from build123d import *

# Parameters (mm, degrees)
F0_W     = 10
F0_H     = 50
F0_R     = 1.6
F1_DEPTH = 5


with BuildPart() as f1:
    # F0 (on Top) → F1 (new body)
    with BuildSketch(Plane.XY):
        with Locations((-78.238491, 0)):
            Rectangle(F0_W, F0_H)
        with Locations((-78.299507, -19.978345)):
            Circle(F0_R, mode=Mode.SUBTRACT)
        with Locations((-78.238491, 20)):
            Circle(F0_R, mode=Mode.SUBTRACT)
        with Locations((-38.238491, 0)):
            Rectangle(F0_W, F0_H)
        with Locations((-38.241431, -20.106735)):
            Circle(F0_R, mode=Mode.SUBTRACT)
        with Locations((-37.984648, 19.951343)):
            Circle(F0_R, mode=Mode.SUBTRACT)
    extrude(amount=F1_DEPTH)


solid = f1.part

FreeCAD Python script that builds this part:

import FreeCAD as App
import Part
import Sketcher
from FreeCAD import Vector

doc = App.newDocument("Part")
body = doc.addObject("PartDesign::Body", "Body")
body.AllowCompound = True

# Sketch on XY plane
sketch1 = doc.addObject("Sketcher::SketchObject", "Sketch")
body.addObject(sketch1)
sketch1.AttachmentSupport = (doc.XY_Plane, [""])
sketch1.MapMode = "FlatFace"
sketch1.addGeometry(Part.LineSegment(Vector(-83.2, 25, 0), Vector(-83.2, -25, 0)), False)
sketch1.addGeometry(Part.LineSegment(Vector(-83.2, -25, 0), Vector(-73.2, -25, 0)), False)
sketch1.addGeometry(Part.LineSegment(Vector(-73.2, -25, 0), Vector(-73.2, 25, 0)), False)
sketch1.addGeometry(Part.LineSegment(Vector(-73.2, 25, 0), Vector(-83.2, 25, 0)), False)
sketch1.addGeometry(Part.Circle(Vector(-78.3, -20, 0), Vector(0, 0, 1), 1.6), False)
sketch1.addGeometry(Part.Circle(Vector(-78.2, 20, 0), Vector(0, 0, 1), 1.6), False)
sketch1.addGeometry(Part.LineSegment(Vector(-43.2, 25, 0), Vector(-43.2, -25, 0)), False)
sketch1.addGeometry(Part.LineSegment(Vector(-43.2, -25, 0), Vector(-33.2, -25, 0)), False)
sketch1.addGeometry(Part.LineSegment(Vector(-33.2, -25, 0), Vector(-33.2, 25, 0)), False)
sketch1.addGeometry(Part.LineSegment(Vector(-33.2, 25, 0), Vector(-43.2, 25, 0)), False)
sketch1.addGeometry(Part.Circle(Vector(-38.2, -20.1, 0), Vector(0, 0, 1), 1.6), False)
sketch1.addGeometry(Part.Circle(Vector(-38, 20, 0), Vector(0, 0, 1), 1.6), False)
sketch1.addConstraint(Sketcher.Constraint("Coincident", 0, 2, 1, 1))
sketch1.addConstraint(Sketcher.Constraint("Coincident", 1, 2, 2, 1))
sketch1.addConstraint(Sketcher.Constraint("Coincident", 2, 2, 3, 1))
sketch1.addConstraint(Sketcher.Constraint("Coincident", 3, 2, 0, 1))
sketch1.addConstraint(Sketcher.Constraint("Coincident", 6, 2, 7, 1))
sketch1.addConstraint(Sketcher.Constraint("Coincident", 7, 2, 8, 1))
sketch1.addConstraint(Sketcher.Constraint("Coincident", 8, 2, 9, 1))
sketch1.addConstraint(Sketcher.Constraint("Coincident", 9, 2, 6, 1))
sketch1.addConstraint(Sketcher.Constraint("Vertical", 0))
sketch1.addConstraint(Sketcher.Constraint("Horizontal", 1))
sketch1.addConstraint(Sketcher.Constraint("Vertical", 2))
sketch1.addConstraint(Sketcher.Constraint("Horizontal", 3))
sketch1.addConstraint(Sketcher.Constraint("Vertical", 6))
sketch1.addConstraint(Sketcher.Constraint("Horizontal", 7))
sketch1.addConstraint(Sketcher.Constraint("Vertical", 8))
sketch1.addConstraint(Sketcher.Constraint("Horizontal", 9))
sketch1.addConstraint(Sketcher.Constraint("Equal", 4, 5))
sketch1.addConstraint(Sketcher.Constraint("Equal", 5, 10))
sketch1.addConstraint(Sketcher.Constraint("Equal", 10, 11))
sketch1.addConstraint(Sketcher.Constraint("Horizontal", 1, 2, 6, 2))
sketch1.addConstraint(Sketcher.Constraint("Horizontal", 3, 2, 8, 2))
sketch1.addConstraint(Sketcher.Constraint("Equal", 3, 7))
sketch1.addConstraint(Sketcher.Constraint("Diameter", 4, 3.2))
sketch1.addConstraint(Sketcher.Constraint("DistanceX", 1, 1, 1, 2, 10.0))
sketch1.addConstraint(Sketcher.Constraint("DistanceY", 0, 2, 0, 1, 50.0))
sketch1.addConstraint(Sketcher.Constraint("DistanceY", -1, 1, 5, 3, 20.0))
sketch1.addConstraint(Sketcher.Constraint("DistanceY", 0, 2, -1, 1, 25.0))
sketch1.addConstraint(Sketcher.Constraint("DistanceX", 0, 2, 5, 3, 5.0))
sketch1.addConstraint(Sketcher.Constraint("DistanceX", 1, 2, 6, 2, 30.0))
sketch1.addConstraint(Sketcher.Constraint("DistanceX", 5, 3, -1, 1, 78.238491))
sketch1.addConstraint(Sketcher.Constraint("DistanceX", 10, 3, -1, 1, 38.241431))
sketch1.addConstraint(Sketcher.Constraint("DistanceY", 10, 3, 4, 3, 0.12839))
sketch1.addConstraint(Sketcher.Constraint("DistanceY", 10, 3, 11, 3, 40.058078))
sketch1.addConstraint(Sketcher.Constraint("DistanceX", 4, 3, 11, 3, 40.314859))
sketch1.addConstraint(Sketcher.Constraint("DistanceX", 4, 3, -1, 1, 78.299507))
sketch1.addConstraint(Sketcher.Constraint("DistanceY", 4, 3, -1, 1, 19.978345))
pad1 = doc.addObject("PartDesign::Pad", "Pad")
body.addObject(pad1)
pad1.Profile = sketch1
pad1.Length = 5

doc.recompute()
